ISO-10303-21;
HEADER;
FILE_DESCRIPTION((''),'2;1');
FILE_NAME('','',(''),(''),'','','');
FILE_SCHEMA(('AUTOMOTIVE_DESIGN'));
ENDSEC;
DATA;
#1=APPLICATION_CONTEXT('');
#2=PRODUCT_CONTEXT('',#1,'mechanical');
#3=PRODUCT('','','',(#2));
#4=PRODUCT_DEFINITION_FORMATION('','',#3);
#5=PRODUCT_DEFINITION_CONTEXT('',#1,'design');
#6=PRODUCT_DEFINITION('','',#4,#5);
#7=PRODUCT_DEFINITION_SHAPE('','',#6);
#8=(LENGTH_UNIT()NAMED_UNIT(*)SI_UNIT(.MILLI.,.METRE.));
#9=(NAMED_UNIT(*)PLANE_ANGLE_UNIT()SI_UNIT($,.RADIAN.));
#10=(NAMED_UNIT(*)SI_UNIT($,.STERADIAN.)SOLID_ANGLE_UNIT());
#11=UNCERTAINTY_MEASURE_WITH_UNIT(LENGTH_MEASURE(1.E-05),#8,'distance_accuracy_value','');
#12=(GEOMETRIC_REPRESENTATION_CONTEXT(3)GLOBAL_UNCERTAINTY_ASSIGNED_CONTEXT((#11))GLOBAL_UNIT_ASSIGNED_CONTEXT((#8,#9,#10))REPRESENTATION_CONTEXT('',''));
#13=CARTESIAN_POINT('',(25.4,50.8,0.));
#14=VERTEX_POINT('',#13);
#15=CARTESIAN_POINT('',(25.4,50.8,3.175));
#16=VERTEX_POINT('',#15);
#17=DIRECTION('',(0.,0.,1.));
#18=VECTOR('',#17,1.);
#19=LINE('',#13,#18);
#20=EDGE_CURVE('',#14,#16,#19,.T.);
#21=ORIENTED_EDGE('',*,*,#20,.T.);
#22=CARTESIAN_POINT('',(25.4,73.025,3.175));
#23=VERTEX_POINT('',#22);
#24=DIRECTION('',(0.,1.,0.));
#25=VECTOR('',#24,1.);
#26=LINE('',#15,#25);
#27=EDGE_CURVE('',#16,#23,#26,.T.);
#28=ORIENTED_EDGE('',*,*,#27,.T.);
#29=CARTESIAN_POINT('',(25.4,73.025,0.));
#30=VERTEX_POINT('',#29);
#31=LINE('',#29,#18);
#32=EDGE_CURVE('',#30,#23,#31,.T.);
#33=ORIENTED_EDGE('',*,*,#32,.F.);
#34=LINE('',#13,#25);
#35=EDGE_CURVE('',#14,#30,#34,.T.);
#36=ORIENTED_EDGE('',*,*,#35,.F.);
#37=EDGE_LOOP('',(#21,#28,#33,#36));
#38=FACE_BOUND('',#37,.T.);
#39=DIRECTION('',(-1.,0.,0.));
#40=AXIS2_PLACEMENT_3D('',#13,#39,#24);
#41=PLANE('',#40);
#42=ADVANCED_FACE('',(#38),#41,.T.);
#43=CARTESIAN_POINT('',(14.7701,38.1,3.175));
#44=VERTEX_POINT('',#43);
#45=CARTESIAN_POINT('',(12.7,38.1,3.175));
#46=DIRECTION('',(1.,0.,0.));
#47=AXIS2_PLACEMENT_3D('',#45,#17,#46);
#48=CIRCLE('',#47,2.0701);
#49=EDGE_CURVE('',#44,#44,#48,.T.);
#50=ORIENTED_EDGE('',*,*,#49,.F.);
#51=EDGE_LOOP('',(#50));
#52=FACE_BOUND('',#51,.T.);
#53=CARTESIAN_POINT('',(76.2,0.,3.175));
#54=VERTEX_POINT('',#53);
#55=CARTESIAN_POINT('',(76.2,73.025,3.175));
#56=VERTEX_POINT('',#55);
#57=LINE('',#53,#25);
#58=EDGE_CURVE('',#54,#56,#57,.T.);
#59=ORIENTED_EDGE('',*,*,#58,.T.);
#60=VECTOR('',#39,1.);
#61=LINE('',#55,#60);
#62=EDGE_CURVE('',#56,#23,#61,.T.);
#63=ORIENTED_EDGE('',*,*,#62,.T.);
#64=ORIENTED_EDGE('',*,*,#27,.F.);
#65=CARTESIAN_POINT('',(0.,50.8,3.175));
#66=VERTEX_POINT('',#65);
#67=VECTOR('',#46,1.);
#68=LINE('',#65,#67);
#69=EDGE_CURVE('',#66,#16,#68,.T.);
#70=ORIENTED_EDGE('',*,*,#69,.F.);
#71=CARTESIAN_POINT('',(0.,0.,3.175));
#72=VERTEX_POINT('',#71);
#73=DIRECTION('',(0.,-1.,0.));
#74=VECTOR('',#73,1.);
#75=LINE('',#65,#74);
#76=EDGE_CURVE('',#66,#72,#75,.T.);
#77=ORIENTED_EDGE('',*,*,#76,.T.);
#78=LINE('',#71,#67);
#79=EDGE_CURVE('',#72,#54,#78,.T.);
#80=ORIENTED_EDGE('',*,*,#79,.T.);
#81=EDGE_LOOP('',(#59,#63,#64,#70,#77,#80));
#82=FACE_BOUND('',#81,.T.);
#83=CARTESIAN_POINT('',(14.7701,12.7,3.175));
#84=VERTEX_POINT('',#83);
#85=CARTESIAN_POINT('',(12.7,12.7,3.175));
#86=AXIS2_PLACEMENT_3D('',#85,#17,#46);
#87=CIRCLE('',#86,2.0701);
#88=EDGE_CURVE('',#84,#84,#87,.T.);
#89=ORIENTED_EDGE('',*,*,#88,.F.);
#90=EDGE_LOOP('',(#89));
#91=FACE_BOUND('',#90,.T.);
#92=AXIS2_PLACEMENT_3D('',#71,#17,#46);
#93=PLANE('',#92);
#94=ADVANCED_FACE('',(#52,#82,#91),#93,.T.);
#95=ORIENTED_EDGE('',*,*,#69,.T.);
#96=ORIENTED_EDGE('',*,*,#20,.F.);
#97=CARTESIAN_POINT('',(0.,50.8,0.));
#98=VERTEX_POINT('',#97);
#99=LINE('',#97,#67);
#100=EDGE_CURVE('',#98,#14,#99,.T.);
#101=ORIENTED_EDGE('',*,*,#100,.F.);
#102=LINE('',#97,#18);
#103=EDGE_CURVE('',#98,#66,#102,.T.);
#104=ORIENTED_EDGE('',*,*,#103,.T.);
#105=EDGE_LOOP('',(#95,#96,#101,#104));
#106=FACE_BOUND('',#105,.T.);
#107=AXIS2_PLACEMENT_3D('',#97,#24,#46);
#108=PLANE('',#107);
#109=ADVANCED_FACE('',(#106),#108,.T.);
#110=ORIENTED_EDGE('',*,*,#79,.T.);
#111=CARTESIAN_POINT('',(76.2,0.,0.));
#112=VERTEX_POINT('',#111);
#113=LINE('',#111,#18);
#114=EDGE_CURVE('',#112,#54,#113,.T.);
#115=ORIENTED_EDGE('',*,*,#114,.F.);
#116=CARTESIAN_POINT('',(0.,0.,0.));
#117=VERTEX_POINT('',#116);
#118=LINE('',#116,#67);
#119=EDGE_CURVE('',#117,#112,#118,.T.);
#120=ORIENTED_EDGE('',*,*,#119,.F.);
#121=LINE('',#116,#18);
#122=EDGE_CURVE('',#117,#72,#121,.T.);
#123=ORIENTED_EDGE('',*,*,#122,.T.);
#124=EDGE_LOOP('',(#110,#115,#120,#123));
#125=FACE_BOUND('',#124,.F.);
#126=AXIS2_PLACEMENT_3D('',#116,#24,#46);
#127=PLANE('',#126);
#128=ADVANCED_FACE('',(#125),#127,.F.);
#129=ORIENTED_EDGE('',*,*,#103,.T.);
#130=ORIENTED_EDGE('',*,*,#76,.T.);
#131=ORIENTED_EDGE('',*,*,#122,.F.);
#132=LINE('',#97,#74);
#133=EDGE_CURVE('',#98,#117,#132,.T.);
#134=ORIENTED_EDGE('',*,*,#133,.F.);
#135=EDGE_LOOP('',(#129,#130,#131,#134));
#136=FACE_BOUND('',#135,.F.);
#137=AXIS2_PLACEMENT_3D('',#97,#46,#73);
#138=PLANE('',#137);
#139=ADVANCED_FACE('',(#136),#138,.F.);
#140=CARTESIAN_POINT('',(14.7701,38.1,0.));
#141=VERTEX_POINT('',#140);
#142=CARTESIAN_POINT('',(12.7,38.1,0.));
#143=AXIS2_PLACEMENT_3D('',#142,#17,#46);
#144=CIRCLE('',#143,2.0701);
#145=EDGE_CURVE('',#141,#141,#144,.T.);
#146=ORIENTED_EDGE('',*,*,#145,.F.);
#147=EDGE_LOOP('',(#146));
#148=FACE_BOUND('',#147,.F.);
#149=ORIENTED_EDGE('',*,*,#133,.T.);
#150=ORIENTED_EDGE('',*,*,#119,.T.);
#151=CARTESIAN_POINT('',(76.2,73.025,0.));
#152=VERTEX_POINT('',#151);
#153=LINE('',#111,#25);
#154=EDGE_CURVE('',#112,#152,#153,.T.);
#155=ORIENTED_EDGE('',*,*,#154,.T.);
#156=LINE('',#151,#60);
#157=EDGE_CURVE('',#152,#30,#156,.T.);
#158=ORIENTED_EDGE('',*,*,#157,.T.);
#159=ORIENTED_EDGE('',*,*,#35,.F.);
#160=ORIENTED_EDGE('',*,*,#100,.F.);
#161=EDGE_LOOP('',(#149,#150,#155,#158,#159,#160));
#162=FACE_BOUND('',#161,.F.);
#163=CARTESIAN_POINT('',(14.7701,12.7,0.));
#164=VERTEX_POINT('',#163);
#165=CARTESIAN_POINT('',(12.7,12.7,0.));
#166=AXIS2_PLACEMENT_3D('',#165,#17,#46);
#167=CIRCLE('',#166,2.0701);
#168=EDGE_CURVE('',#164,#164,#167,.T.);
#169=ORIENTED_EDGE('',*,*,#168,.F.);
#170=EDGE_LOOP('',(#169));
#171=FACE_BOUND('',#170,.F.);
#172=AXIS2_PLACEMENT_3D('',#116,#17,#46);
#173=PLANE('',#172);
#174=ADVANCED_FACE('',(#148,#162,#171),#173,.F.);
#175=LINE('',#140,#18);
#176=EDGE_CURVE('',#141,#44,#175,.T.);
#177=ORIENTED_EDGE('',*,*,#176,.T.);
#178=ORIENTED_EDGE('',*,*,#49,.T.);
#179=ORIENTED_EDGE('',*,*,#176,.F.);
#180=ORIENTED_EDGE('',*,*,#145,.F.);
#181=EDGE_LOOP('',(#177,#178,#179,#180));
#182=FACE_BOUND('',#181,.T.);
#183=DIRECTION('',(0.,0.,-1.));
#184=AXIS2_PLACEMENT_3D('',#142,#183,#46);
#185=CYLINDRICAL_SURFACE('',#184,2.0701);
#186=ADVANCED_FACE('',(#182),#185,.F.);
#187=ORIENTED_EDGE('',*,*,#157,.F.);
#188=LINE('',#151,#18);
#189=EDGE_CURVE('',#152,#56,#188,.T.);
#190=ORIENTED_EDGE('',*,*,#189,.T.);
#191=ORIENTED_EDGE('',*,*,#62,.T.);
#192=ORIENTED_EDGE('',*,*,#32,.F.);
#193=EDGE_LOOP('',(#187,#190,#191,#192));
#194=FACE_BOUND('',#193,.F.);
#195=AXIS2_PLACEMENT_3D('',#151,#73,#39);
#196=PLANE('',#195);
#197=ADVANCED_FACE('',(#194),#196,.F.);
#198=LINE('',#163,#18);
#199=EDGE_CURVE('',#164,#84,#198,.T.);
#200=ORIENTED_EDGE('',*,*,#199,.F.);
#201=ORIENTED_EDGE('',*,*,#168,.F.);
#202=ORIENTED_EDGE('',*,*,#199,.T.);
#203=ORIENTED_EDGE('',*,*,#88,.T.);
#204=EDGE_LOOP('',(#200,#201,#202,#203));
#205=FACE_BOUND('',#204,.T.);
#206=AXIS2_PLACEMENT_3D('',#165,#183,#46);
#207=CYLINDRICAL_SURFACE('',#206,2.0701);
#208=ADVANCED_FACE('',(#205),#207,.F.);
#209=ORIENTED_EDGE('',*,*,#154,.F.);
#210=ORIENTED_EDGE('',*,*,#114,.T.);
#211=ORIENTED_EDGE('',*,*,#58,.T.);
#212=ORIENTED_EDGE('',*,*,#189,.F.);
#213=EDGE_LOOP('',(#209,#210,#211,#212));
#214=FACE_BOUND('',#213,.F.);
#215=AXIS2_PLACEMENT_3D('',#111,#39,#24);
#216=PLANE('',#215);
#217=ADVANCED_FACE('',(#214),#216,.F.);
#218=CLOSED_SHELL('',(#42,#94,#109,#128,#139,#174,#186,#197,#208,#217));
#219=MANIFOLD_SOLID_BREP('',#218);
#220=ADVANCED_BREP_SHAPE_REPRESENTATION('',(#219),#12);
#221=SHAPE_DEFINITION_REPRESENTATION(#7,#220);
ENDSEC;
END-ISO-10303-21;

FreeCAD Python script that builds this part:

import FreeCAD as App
import Part
import Sketcher

V = App.Vector
Q = App.Units.Quantity


def add_polygon(sketch, points):
    """Adds a closed chain of lines whose ends are joined by coincident constraints."""
    first, n = sketch.GeometryCount, len(points)
    for a, b in zip(points, points[1:] + points[:1]):
        sketch.addGeometry(Part.LineSegment(App.Vector(*a, 0), App.Vector(*b, 0)), False)
    for i in range(n):
        sketch.addConstraint(Sketcher.Constraint("Coincident", first + i, 2, first + (i + 1) % n, 1))

doc = App.newDocument("Part")
body = doc.addObject("PartDesign::Body", "Body")

# Sketch on XY plane
sketch1 = body.newObject("Sketcher::SketchObject", "Sketch")
sketch1.AttachmentSupport = (doc.getObject("XY_Plane"), [""])
sketch1.MapMode = "FlatFace"
add_polygon(sketch1, [(0, 50.8), (0, 0), (76.2, 0), (76.2, 73), (25.4, 73), (25.4, 50.8)])  # lines 0-5
sketch1.addGeometry(Part.Circle(V(12.7, 12.7, 0), V(0, 0, 1), 2.1), False)  # 6
sketch1.addGeometry(Part.Circle(V(12.7, 38.1, 0), V(0, 0, 1), 2.1), False)  # 7
sketch1.addConstraint([
    Sketcher.Constraint("Vertical", 0),
    Sketcher.Constraint("Horizontal", 1),
    Sketcher.Constraint("Vertical", 2),
    Sketcher.Constraint("Horizontal", 3),
    Sketcher.Constraint("Vertical", 4),
    Sketcher.Constraint("Horizontal", 5),
    Sketcher.Constraint("Coincident", 0, 2, -1, 1),
    Sketcher.Constraint("Equal", 6, 7),
    Sketcher.Constraint("Vertical", 6, 3, 7, 3),
    Sketcher.Constraint("Equal", 3, 0),
    Sketcher.Constraint("DistanceX", 3, 2, 3, 1, Q("2 in")),
    Sketcher.Constraint("DistanceX", 5, 2, 5, 1, Q("1 in")),
    Sketcher.Constraint("Diameter", 6, Q("0.163 in")),
    Sketcher.Constraint("DistanceY", 6, 3, 7, 3, Q("1 in")),
    Sketcher.Constraint("DistanceX", -1, 1, 6, 3, Q("0.5 in")),
    Sketcher.Constraint("DistanceY", -1, 1, 6, 3, Q("0.5 in")),
    Sketcher.Constraint("DistanceY", 2, 1, 2, 2, Q("2.875 in")),
])
pad1 = body.newObject("PartDesign::Pad", "Pad")
pad1.Profile = sketch1
pad1.Length = Q("0.125 in")

doc.recompute()
